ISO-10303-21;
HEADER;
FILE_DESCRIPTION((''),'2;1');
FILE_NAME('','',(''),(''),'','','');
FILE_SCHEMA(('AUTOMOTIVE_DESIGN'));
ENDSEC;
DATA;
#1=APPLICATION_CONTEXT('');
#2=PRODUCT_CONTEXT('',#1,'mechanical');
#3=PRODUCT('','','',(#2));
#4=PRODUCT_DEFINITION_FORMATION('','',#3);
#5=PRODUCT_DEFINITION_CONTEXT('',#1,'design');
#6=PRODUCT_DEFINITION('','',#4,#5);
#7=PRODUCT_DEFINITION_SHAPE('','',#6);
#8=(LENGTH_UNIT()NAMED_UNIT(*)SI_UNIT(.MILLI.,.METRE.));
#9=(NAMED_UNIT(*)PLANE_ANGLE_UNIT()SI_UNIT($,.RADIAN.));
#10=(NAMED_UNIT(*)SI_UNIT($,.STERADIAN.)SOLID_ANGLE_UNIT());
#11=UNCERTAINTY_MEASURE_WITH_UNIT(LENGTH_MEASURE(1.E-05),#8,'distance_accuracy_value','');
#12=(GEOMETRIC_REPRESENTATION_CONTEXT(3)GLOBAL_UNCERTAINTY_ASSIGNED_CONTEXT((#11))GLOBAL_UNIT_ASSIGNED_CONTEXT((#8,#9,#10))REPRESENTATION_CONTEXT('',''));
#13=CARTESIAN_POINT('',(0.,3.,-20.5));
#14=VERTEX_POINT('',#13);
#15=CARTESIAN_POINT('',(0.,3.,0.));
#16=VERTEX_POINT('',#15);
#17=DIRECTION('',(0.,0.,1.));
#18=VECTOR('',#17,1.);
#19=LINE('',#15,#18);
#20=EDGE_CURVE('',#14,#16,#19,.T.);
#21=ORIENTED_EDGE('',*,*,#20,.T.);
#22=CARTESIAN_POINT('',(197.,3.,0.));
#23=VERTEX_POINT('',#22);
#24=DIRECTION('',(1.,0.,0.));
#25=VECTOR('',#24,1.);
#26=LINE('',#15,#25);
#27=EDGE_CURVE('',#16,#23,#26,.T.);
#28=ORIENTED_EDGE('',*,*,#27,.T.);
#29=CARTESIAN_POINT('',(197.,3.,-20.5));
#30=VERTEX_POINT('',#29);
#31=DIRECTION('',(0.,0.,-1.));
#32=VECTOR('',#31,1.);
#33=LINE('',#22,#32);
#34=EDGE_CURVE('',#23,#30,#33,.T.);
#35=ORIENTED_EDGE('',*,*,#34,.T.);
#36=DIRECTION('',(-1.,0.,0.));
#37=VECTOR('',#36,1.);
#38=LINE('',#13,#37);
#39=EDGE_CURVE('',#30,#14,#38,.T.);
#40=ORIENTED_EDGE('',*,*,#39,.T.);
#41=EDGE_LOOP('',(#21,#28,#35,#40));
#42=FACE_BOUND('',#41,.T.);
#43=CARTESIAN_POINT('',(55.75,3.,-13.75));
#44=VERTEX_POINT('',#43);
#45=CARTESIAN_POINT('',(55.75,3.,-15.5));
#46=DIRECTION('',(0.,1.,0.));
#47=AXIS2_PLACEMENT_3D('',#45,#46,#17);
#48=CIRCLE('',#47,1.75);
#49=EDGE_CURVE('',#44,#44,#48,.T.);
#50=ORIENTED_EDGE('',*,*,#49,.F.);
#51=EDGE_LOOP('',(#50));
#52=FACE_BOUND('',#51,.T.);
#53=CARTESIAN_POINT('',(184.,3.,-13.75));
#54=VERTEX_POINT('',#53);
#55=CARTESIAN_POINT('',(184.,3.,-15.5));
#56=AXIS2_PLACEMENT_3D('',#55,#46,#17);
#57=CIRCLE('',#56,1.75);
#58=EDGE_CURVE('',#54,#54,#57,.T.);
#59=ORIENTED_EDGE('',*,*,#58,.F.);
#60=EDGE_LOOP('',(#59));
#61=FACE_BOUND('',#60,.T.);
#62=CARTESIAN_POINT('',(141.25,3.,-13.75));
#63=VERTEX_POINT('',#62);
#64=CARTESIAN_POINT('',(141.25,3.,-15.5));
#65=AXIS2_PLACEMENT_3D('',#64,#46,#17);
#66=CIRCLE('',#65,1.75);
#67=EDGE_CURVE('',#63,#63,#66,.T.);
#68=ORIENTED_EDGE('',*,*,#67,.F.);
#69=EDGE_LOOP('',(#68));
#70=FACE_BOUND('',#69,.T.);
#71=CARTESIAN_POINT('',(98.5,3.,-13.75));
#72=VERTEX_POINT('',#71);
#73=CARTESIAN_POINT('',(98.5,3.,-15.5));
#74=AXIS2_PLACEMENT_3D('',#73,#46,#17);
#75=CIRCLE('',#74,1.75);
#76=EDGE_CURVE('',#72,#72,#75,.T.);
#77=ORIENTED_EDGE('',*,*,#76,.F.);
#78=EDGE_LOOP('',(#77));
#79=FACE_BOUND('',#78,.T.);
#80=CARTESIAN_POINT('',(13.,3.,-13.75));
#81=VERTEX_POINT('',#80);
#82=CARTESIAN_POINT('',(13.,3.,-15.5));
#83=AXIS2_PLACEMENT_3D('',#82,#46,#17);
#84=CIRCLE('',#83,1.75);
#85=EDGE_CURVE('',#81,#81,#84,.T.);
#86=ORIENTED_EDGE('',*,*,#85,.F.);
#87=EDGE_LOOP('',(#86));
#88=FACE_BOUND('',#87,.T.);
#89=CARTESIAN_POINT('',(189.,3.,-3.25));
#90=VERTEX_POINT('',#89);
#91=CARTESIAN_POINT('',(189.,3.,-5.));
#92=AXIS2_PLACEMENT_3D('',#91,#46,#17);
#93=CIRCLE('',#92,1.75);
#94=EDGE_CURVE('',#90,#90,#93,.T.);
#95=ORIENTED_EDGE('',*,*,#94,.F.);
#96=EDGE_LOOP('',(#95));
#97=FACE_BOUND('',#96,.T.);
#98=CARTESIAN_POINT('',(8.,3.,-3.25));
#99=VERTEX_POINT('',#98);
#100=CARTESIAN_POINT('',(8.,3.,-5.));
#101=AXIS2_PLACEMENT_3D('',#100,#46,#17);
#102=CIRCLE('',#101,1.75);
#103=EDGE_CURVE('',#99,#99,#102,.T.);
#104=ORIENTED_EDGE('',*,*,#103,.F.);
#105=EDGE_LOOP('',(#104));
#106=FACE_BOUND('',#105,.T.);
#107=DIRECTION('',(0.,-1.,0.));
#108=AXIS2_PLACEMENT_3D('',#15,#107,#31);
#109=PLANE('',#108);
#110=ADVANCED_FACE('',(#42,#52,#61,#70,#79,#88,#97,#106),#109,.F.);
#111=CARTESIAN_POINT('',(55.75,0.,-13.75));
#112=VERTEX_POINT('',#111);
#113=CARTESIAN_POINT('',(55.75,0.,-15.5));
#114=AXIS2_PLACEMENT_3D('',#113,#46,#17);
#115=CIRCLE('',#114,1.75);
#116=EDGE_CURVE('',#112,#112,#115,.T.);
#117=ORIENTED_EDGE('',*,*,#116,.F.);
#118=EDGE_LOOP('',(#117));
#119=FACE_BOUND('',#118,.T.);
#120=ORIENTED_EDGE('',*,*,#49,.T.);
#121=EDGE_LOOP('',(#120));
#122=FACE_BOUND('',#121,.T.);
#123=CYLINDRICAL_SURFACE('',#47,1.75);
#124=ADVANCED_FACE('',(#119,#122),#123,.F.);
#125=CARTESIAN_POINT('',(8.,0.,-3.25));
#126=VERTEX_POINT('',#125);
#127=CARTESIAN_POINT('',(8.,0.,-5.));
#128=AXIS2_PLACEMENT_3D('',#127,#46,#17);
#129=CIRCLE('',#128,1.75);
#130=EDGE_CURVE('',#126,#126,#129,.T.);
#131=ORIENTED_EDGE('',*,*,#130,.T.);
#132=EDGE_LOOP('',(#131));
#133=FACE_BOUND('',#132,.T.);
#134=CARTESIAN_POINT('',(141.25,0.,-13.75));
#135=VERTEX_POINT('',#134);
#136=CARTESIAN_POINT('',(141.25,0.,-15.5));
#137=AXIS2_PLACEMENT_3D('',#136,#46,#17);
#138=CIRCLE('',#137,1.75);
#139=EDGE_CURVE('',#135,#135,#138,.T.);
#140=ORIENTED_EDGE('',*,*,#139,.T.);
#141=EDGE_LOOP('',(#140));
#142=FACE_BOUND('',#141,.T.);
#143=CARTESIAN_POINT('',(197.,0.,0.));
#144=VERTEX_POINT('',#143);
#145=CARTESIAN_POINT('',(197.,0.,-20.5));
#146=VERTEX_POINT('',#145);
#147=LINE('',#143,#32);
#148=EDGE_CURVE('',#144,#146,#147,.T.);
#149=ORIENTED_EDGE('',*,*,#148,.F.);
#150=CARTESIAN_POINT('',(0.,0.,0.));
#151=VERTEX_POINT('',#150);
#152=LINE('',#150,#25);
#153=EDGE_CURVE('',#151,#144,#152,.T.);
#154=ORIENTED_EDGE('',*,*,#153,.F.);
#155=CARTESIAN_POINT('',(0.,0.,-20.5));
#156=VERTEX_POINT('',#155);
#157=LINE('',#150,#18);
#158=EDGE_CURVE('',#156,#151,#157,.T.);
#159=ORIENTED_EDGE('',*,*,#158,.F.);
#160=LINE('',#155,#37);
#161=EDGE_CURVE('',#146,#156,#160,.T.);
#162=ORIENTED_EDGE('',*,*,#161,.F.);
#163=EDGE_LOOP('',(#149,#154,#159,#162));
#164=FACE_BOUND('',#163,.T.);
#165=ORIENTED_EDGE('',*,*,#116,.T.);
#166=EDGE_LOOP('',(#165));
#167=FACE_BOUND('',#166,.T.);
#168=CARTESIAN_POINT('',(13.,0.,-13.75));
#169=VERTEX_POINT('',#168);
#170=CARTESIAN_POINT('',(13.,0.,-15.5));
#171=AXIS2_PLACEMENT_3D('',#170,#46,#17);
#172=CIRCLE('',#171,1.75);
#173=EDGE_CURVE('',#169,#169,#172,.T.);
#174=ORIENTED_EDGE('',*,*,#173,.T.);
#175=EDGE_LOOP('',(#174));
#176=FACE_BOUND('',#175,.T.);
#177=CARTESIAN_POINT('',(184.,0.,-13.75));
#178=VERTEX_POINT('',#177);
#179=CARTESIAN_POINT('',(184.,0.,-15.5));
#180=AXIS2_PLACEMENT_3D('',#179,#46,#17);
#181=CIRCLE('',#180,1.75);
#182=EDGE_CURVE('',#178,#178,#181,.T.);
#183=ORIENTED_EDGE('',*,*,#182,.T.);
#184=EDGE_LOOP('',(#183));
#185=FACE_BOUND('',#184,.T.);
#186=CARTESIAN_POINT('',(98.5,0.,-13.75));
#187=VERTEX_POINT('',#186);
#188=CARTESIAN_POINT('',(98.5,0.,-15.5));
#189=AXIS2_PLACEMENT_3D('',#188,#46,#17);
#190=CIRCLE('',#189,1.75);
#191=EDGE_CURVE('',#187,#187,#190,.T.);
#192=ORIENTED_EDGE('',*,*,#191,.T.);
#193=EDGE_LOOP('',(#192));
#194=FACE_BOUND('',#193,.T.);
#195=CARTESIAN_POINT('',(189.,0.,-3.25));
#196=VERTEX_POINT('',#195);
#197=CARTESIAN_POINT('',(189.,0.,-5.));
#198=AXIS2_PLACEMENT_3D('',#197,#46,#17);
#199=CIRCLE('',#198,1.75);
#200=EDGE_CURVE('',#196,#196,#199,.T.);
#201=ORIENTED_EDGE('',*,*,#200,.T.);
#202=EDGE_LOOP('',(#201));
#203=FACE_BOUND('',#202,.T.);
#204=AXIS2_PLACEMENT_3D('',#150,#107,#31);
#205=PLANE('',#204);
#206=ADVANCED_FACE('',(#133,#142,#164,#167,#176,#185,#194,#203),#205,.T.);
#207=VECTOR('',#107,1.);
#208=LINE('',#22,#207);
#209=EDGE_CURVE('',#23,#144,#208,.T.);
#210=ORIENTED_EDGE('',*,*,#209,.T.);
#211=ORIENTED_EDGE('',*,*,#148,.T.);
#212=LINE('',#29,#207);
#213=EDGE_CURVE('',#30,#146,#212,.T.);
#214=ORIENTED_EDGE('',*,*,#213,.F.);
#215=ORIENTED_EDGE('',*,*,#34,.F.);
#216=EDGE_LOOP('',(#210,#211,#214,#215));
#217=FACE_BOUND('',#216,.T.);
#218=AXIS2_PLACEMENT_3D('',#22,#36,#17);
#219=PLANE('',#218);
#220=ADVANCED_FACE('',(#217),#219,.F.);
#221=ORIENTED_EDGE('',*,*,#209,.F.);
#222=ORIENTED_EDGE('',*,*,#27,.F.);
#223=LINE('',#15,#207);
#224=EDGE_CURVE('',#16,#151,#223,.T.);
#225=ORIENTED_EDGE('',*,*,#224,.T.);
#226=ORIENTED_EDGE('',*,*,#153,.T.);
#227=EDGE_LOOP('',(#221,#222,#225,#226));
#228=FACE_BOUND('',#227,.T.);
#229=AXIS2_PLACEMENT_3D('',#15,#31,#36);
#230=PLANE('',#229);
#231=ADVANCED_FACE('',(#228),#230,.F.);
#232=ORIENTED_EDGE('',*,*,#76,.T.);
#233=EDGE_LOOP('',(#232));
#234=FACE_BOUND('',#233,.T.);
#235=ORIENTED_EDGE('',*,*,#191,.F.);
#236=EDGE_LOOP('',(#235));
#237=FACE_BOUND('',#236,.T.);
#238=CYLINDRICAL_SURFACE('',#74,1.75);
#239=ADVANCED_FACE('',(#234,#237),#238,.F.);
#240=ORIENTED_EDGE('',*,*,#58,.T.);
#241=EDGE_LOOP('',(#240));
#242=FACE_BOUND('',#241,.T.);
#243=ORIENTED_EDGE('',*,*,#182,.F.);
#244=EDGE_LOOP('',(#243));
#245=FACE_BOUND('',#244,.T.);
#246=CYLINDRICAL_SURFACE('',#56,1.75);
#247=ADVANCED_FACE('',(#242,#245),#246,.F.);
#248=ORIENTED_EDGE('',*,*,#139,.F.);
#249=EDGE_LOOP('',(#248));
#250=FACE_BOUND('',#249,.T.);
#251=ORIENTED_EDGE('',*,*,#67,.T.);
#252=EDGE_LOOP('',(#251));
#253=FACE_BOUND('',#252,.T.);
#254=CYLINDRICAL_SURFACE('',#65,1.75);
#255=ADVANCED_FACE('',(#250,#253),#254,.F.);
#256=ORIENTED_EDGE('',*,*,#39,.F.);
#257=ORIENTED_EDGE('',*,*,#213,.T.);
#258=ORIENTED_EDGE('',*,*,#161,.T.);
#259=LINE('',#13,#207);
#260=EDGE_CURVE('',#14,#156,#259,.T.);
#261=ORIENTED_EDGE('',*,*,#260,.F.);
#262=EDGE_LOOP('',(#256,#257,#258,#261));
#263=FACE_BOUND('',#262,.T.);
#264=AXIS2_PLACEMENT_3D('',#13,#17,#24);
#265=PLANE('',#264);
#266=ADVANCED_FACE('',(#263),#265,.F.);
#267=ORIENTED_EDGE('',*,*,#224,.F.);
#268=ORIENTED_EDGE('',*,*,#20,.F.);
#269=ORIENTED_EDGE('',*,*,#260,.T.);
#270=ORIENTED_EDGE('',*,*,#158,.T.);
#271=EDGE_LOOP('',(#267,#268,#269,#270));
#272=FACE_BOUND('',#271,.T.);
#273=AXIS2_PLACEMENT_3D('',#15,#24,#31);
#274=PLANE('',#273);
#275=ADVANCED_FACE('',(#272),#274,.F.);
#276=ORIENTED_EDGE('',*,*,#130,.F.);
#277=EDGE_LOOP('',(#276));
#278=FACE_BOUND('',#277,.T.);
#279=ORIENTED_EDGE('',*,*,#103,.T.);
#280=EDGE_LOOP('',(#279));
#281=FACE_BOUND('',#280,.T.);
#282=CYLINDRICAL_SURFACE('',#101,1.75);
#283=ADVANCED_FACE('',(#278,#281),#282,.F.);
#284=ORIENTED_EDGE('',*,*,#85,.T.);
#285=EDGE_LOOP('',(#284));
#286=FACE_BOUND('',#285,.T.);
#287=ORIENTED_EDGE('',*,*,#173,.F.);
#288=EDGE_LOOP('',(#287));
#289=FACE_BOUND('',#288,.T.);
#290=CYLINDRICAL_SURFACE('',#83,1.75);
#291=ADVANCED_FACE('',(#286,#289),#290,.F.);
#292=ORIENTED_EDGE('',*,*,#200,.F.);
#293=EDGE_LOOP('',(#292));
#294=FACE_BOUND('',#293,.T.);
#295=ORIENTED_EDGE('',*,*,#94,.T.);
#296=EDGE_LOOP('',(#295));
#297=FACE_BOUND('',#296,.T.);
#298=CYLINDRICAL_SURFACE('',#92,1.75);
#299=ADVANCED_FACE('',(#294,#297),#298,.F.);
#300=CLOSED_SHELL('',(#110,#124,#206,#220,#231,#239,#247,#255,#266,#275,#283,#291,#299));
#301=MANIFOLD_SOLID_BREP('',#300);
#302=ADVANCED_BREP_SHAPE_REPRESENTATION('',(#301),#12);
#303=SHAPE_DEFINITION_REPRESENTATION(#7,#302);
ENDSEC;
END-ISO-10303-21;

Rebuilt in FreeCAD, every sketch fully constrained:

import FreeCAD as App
import Part
import Sketcher

V = App.Vector


def add_polygon(sketch, points):
    """Adds a closed chain of lines whose ends are joined by coincident constraints."""
    first, n = sketch.GeometryCount, len(points)
    for a, b in zip(points, points[1:] + points[:1]):
        sketch.addGeometry(Part.LineSegment(App.Vector(*a, 0), App.Vector(*b, 0)), False)
    for i in range(n):
        sketch.addConstraint(Sketcher.Constraint("Coincident", first + i, 2, first + (i + 1) % n, 1))

doc = App.newDocument("Part")
body = doc.addObject("PartDesign::Body", "Body")

# Sketch on XZ plane
sketch1 = body.newObject("Sketcher::SketchObject", "Sketch")
sketch1.AttachmentSupport = (doc.getObject("XZ_Plane"), [""])
sketch1.MapMode = "FlatFace"
add_polygon(sketch1, [(0, -20), (0, 0), (197, 0), (197, -20)])  # lines 0-3
sketch1.addConstraint(Sketcher.Constraint("Vertical", 0))
sketch1.addConstraint(Sketcher.Constraint("Horizontal", 1))
sketch1.addConstraint(Sketcher.Constraint("Vertical", 2))
sketch1.addConstraint(Sketcher.Constraint("Horizontal", 3))
sketch1.addConstraint(Sketcher.Constraint("Coincident", 0, 2, -1, 1))
sketch1.addConstraint(Sketcher.Constraint("DistanceX", 1, 1, 1, 2, 197.0))
sketch1.addConstraint(Sketcher.Constraint("DistanceY", 0, 1, 0, 2, 20.5))
pad1 = body.newObject("PartDesign::Pad", "Pad")
pad1.Profile = sketch1
pad1.Length = 3
pad1.Reversed = True

# Sketch on XZ plane
sketch2 = body.newObject("Sketcher::SketchObject", "Sketch001")
sketch2.AttachmentSupport = (doc.getObject("XZ_Plane"), [""])
sketch2.MapMode = "FlatFace"
sketch2.AttachmentOffset = App.Placement(V(0, 0, -3), App.Rotation())
sketch2.addGeometry(Part.Circle(V(8, -5, 0), V(0, 0, 1), 1.8), False)
sketch2.addGeometry(Part.Circle(V(189, -5, 0), V(0, 0, 1), 1.8), False)
sketch2.addConstraint(Sketcher.Constraint("Equal", 0, 1))
sketch2.addConstraint(Sketcher.Constraint("Horizontal", 0, 3, 1, 3))
sketch2.addConstraint(Sketcher.Constraint("Diameter", 0, 3.5))
sketch2.addConstraint(Sketcher.Constraint("DistanceX", -1, 1, 0, 3, 8.0))
sketch2.addConstraint(Sketcher.Constraint("DistanceY", 0, 3, -1, 1, 5.0))
sketch2.addConstraint(Sketcher.Constraint("DistanceX", -1, 1, 1, 3, 189.0))
doc.recompute()
hole = body.newObject("PartDesign::Hole", "Hole")
hole.Profile = sketch2
hole.ThreadType = "None"
hole.Diameter = 3.5
hole.DepthType = "ThroughAll"
hole.Reversed = True

# Sketch on XZ plane
sketch3 = body.newObject("Sketcher::SketchObject", "Sketch002")
sketch3.AttachmentSupport = (doc.getObject("XZ_Plane"), [""])
sketch3.MapMode = "FlatFace"
sketch3.AttachmentOffset = App.Placement(V(0, 0, -3), App.Rotation())
sketch3.addGeometry(Part.Circle(V(98.5, -15.5, 0), V(0, 0, 1), 1.8), False)
sketch3.addGeometry(Part.Circle(V(141.2, -15.5, 0), V(0, 0, 1), 1.8), False)
sketch3.addGeometry(Part.Circle(V(55.8, -15.5, 0), V(0, 0, 1), 1.8), False)
sketch3.addGeometry(Part.Circle(V(13, -15.5, 0), V(0, 0, 1), 1.8), False)
sketch3.addGeometry(Part.Circle(V(184, -15.5, 0), V(0, 0, 1), 1.8), False)
sketch3.addConstraint(Sketcher.Constraint("Equal", 0, 1))
sketch3.addConstraint(Sketcher.Constraint("Equal", 1, 2))
sketch3.addConstraint(Sketcher.Constraint("Equal", 2, 3))
sketch3.addConstraint(Sketcher.Constraint("Equal", 3, 4))
sketch3.addConstraint(Sketcher.Constraint("Horizontal", 0, 3, 1, 3))
sketch3.addConstraint(Sketcher.Constraint("Horizontal", 1, 3, 2, 3))
sketch3.addConstraint(Sketcher.Constraint("Horizontal", 2, 3, 3, 3))
sketch3.addConstraint(Sketcher.Constraint("Horizontal", 3, 3, 4, 3))
sketch3.addConstraint(Sketcher.Constraint("Diameter", 0, 3.5))
sketch3.addConstraint(Sketcher.Constraint("DistanceX", -1, 1, 3, 3, 13.0))
sketch3.addConstraint(Sketcher.Constraint("DistanceX", -1, 1, 4, 3, 184.0))
sketch3.addConstraint(Sketcher.Constraint("DistanceX", -1, 1, 0, 3, 98.5))
sketch3.addConstraint(Sketcher.Constraint("DistanceY", 0, 3, -1, 1, 15.5))
sketch3.addConstraint(Sketcher.Constraint("DistanceX", 2, 3, 1, 3, 85.5))
sketch3.addConstraint(Sketcher.Constraint("DistanceX", -1, 1, 1, 3, 141.25))
doc.recompute()
hole2 = body.newObject("PartDesign::Hole", "Hole001")
hole2.Profile = sketch3
hole2.ThreadType = "None"
hole2.Diameter = 3.5
hole2.DepthType = "ThroughAll"
hole2.Reversed = True

doc.recompute()
